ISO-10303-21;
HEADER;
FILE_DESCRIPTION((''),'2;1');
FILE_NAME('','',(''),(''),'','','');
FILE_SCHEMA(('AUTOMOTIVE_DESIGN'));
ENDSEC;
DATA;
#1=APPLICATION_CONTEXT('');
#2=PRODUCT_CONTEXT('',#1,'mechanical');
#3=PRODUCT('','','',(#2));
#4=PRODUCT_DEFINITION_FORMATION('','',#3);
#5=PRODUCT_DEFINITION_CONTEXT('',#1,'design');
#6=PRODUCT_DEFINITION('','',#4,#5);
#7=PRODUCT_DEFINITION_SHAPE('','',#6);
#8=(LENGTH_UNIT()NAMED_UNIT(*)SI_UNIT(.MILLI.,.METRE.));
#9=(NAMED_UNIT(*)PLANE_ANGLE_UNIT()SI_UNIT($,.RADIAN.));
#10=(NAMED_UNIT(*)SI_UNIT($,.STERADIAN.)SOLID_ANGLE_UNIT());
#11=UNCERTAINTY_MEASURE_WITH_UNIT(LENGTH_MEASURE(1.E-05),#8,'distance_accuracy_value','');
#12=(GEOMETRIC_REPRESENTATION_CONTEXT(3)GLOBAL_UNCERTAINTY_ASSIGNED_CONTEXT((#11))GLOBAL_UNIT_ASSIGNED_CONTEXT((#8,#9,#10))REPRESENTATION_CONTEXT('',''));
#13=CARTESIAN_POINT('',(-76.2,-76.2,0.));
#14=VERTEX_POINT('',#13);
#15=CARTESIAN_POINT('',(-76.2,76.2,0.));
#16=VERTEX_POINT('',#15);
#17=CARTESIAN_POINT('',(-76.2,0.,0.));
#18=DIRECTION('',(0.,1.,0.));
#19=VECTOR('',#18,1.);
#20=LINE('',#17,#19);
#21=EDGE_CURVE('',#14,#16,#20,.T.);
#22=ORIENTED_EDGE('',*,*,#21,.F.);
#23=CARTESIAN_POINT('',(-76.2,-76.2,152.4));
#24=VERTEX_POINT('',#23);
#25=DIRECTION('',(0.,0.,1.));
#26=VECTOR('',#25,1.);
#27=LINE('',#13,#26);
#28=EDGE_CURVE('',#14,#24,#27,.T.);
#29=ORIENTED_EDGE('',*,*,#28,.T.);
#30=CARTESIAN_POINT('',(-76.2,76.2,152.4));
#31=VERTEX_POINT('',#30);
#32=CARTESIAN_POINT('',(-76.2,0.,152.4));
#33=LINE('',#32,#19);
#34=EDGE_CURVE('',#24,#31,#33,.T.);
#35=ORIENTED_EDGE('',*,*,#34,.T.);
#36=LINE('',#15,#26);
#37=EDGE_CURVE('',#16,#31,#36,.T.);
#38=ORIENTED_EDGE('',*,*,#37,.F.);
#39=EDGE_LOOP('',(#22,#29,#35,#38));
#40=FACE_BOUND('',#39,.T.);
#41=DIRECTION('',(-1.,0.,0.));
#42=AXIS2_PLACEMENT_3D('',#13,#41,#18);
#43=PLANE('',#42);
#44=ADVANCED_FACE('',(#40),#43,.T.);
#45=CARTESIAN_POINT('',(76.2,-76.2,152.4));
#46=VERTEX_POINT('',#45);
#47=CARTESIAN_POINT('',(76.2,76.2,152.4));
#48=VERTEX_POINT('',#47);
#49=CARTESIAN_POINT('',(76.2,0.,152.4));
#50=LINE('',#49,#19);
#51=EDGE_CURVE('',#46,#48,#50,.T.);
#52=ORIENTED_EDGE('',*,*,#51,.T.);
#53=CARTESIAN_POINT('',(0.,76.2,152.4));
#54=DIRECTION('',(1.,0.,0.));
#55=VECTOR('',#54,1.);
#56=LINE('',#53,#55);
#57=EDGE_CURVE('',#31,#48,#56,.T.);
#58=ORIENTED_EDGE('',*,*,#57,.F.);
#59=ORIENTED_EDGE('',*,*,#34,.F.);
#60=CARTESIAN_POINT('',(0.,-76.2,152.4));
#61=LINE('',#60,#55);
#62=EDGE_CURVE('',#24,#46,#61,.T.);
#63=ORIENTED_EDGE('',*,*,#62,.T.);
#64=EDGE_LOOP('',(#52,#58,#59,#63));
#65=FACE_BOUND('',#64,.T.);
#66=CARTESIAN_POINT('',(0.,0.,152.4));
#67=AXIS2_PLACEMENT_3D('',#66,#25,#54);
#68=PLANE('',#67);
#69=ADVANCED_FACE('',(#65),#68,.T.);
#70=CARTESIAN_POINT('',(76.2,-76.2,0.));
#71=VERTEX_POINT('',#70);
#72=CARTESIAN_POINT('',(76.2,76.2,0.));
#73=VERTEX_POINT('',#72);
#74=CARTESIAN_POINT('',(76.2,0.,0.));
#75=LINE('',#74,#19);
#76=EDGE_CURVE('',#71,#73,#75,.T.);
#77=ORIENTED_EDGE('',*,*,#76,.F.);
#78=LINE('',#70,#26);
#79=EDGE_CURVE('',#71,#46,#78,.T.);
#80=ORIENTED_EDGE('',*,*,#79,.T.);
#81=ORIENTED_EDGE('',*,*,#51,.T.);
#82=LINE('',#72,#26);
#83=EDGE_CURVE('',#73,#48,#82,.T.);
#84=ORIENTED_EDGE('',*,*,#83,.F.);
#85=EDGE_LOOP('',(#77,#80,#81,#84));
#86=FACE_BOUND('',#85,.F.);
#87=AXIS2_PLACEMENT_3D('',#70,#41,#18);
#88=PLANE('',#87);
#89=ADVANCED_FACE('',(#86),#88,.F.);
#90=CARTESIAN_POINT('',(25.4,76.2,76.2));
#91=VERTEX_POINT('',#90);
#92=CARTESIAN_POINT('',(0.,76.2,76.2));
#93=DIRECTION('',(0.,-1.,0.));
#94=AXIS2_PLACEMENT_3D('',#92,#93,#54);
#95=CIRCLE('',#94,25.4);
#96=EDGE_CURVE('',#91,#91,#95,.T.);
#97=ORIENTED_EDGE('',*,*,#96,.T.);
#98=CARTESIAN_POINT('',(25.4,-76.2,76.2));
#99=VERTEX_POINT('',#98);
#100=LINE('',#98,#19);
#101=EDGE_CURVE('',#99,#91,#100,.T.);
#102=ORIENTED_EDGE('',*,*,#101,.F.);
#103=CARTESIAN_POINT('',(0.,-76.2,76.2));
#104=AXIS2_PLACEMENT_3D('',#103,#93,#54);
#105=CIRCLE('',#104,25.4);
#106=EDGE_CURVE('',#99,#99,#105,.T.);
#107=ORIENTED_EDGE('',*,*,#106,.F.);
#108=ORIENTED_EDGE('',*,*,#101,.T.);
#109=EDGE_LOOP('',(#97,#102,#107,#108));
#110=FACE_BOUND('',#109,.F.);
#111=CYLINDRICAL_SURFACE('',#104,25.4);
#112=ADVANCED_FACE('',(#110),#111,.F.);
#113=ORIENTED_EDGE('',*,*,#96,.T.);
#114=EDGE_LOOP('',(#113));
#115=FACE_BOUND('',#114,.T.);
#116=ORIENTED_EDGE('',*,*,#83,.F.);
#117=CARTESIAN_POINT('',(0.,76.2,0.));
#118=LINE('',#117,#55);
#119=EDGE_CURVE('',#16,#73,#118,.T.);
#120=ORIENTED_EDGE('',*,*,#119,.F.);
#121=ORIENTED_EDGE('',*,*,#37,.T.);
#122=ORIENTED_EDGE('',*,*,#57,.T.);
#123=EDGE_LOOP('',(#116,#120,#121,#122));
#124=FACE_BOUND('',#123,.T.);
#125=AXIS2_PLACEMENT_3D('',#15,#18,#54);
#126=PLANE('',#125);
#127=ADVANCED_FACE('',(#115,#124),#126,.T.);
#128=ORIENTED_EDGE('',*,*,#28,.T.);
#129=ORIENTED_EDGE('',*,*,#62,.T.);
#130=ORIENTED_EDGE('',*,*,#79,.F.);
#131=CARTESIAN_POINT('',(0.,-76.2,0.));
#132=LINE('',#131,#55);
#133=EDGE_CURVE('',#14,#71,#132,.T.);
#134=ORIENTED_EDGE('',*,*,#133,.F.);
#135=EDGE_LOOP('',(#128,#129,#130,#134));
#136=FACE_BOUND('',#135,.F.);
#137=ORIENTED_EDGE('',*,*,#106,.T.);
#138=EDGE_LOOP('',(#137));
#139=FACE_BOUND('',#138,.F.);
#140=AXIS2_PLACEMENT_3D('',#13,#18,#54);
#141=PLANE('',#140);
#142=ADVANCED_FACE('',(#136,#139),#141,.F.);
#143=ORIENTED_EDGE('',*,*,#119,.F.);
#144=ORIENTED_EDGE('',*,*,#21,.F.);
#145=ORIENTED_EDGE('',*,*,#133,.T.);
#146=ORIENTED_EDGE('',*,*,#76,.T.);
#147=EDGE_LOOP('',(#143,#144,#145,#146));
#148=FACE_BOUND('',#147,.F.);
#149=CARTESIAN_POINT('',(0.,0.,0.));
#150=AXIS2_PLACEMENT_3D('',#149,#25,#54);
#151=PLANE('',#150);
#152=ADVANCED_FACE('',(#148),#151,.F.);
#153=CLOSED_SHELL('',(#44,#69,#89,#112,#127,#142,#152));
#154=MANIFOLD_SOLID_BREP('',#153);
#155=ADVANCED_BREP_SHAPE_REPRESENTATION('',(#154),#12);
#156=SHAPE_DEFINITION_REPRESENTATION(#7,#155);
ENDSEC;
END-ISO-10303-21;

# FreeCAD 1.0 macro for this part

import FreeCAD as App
import Part
import Sketcher
Q = App.Units.Quantity

doc = App.newDocument("Part")
params = doc.addObject("Spreadsheet::Sheet", "Params")
for row, (alias, value) in enumerate([
    ("sketch1_width", "6 in"),
    ("pad1_length", "6 in"),
    ("sketch2_diameter", "2 in"),
    ("pocket1_length", "6 in"),
], start=1):
    params.set(f"A{row}", alias)
    params.set(f"B{row}", "=" + value)
    params.setAlias(f"B{row}", alias)

body = doc.addObject("PartDesign::Body", "Body")

# Sketch on XY plane
sketch1 = body.newObject("Sketcher::SketchObject", "Sketch")
sketch1.AttachmentSupport = (doc.getObject("XY_Plane"), [""])
sketch1.MapMode = "FlatFace"
sketch1.addGeometry([
    Part.LineSegment(App.Vector(-76, 76, 0), App.Vector(-76, -76, 0)),
    Part.LineSegment(App.Vector(-76, -76, 0), App.Vector(76, -76, 0)),
    Part.LineSegment(App.Vector(76, -76, 0), App.Vector(76, 76, 0)),
    Part.LineSegment(App.Vector(76, 76, 0), App.Vector(-76, 76, 0)),
], False)
sketch1.addConstraint([
    Sketcher.Constraint("Coincident", 0, 2, 1, 1),
    Sketcher.Constraint("Coincident", 1, 2, 2, 1),
    Sketcher.Constraint("Coincident", 2, 2, 3, 1),
    Sketcher.Constraint("Coincident", 3, 2, 0, 1),
    Sketcher.Constraint("Vertical", 0),
    Sketcher.Constraint("Horizontal", 1),
    Sketcher.Constraint("Vertical", 2),
    Sketcher.Constraint("Horizontal", 3),
    Sketcher.Constraint("Symmetric", 0, 2, 2, 2, -1, 1),
    Sketcher.Constraint("Equal", 3, 0),
    Sketcher.Constraint("DistanceX", 1, 1, 1, 2, Q("6 in")),
])
sketch1.setExpression("Constraints[10]", "Params.sketch1_width")
pad1 = body.newObject("PartDesign::Pad", "Pad")
pad1.Profile = sketch1
pad1.setExpression("Length", "Params.pad1_length")

# Sketch on XZ plane
sketch2 = body.newObject("Sketcher::SketchObject", "Sketch001")
sketch2.AttachmentSupport = (doc.getObject("XZ_Plane"), [""])
sketch2.MapMode = "FlatFace"
sketch2.AttachmentOffset = App.Placement(App.Vector(0, 0, 3 * 25.4), App.Rotation())
sketch2.addGeometry(Part.Circle(App.Vector(0, 76, 0), App.Vector(0, 0, 1), 25), False)
sketch2.addConstraint([
    Sketcher.Constraint("PointOnObject", 0, 3, -2),
    Sketcher.Constraint("Diameter", 0, Q("2 in")),
    Sketcher.Constraint("DistanceY", -1, 1, 0, 3, Q("3 in")),
])
sketch2.setExpression("Constraints[1]", "Params.sketch2_diameter")
pocket1 = body.newObject("PartDesign::Pocket", "Pocket")
pocket1.Profile = sketch2
pocket1.setExpression("Length", "Params.pocket1_length")

doc.recompute()
